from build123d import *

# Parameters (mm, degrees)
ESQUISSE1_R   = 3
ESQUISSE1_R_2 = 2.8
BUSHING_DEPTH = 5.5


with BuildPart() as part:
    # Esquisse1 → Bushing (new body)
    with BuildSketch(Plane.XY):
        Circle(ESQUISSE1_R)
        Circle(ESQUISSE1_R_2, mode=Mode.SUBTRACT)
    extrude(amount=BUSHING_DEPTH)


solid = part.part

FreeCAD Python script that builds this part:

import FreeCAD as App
import Part
import Sketcher
from FreeCAD import Vector

doc = App.newDocument("Part")
body = doc.addObject("PartDesign::Body", "Body")

# Sketch on XY plane
sketch1 = body.newObject("Sketcher::SketchObject", "Sketch")
sketch1.AttachmentSupport = (doc.getObject("XY_Plane"), [""])
sketch1.MapMode = "FlatFace"
sketch1.addGeometry(Part.Circle(Vector(0, 0, 0), Vector(0, 0, 1), 3), False)
sketch1.addGeometry(Part.Circle(Vector(0, 0, 0), Vector(0, 0, 1), 2.8), False)
sketch1.addConstraint(Sketcher.Constraint("Coincident", 0, 3, -1, 1))
sketch1.addConstraint(Sketcher.Constraint("Coincident", 1, 3, -1, 1))
sketch1.addConstraint(Sketcher.Constraint("Diameter", 0, 6.0))
sketch1.addConstraint(Sketcher.Constraint("Diameter", 1, 5.6))
pad1 = body.newObject("PartDesign::Pad", "Pad")
pad1.Profile = sketch1
pad1.Length = 5.5

doc.recompute()
